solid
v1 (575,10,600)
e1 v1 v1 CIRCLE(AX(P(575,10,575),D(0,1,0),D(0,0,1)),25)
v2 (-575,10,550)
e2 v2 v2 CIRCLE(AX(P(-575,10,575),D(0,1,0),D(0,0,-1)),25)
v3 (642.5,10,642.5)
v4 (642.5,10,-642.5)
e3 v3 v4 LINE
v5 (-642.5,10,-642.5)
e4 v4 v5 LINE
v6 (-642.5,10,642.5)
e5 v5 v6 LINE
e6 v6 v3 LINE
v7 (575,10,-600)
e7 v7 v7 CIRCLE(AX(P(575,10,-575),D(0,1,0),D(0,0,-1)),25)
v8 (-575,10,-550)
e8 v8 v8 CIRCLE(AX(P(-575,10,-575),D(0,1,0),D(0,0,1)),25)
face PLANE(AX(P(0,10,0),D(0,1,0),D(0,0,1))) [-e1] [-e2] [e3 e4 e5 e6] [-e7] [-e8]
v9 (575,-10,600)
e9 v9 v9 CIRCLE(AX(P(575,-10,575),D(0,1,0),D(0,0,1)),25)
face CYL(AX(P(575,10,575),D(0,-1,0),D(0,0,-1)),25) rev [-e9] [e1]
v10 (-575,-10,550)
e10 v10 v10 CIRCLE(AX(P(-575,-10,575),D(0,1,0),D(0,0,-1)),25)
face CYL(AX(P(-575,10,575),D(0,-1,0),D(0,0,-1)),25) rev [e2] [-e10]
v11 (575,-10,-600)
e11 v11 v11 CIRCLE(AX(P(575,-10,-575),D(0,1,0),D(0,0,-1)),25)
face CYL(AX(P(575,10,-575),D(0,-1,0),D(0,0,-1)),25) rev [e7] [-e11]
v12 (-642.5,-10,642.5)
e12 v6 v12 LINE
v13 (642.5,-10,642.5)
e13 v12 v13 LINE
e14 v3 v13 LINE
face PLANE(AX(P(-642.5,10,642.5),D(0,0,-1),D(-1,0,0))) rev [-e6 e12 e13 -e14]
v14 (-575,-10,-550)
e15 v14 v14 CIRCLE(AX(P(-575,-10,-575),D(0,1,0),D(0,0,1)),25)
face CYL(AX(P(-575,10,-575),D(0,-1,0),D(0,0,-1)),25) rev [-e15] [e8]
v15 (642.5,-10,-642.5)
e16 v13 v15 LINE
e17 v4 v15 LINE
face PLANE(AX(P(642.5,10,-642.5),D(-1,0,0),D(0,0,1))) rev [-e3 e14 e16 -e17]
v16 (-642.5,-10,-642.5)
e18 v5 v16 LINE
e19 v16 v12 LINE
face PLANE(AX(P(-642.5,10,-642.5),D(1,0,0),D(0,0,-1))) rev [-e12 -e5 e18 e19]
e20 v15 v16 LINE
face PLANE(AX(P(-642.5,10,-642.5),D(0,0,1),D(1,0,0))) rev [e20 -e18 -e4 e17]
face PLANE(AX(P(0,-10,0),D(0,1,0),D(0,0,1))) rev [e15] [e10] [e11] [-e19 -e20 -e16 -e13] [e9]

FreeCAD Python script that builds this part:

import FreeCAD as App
import Part
import Sketcher

V = App.Vector

doc = App.newDocument("Part")
body = doc.addObject("PartDesign::Body", "Body")

sketch1 = body.newObject("Sketcher::SketchObject", "Sketch")
sketch1.AttachmentSupport = (doc.getObject("XZ_Plane"), [""])
sketch1.MapMode = "FlatFace"
sketch1.addGeometry(Part.LineSegment(V(-642, -642, 0), V(-642, 642, 0)), False)
sketch1.addGeometry(Part.LineSegment(V(-642, 642, 0), V(642, 642, 0)), False)
sketch1.addGeometry(Part.LineSegment(V(642, 642, 0), V(642, -642, 0)), False)
sketch1.addGeometry(Part.LineSegment(V(642, -642, 0), V(-642, -642, 0)), False)
sketch1.addGeometry(Part.Circle(V(-575, 575, 0), V(0, 0, 1), 25), False)
sketch1.addGeometry(Part.Circle(V(575, 575, 0), V(0, 0, 1), 25), False)
sketch1.addGeometry(Part.Circle(V(-575, -575, 0), V(0, 0, 1), 25), False)
sketch1.addGeometry(Part.Circle(V(575, -575, 0), V(0, 0, 1), 25), False)
sketch1.addConstraint(Sketcher.Constraint("Coincident", 0, 2, 1, 1))
sketch1.addConstraint(Sketcher.Constraint("Coincident", 1, 2, 2, 1))
sketch1.addConstraint(Sketcher.Constraint("Coincident", 2, 2, 3, 1))
sketch1.addConstraint(Sketcher.Constraint("Coincident", 3, 2, 0, 1))
sketch1.addConstraint(Sketcher.Constraint("Vertical", 0))
sketch1.addConstraint(Sketcher.Constraint("Horizontal", 1))
sketch1.addConstraint(Sketcher.Constraint("Vertical", 2))
sketch1.addConstraint(Sketcher.Constraint("Horizontal", 3))
sketch1.addConstraint(Sketcher.Constraint("Equal", 4, 5))
sketch1.addConstraint(Sketcher.Constraint("Equal", 5, 6))
sketch1.addConstraint(Sketcher.Constraint("Equal", 6, 7))
sketch1.addConstraint(Sketcher.Constraint("Symmetric", 5, 3, 6, 3, -1, 1))
sketch1.addConstraint(Sketcher.Constraint("Symmetric", 4, 3, 7, 3, -1, 1))
sketch1.addConstraint(Sketcher.Constraint("Symmetric", 0, 2, 2, 2, -1, 1))
sketch1.addConstraint(Sketcher.Constraint("Symmetric", 4, 3, 5, 3, -2))
sketch1.addConstraint(Sketcher.Constraint("Equal", 3, 0))
sketch1.addConstraint(Sketcher.Constraint("Diameter", 4, 50.0))
sketch1.addConstraint(Sketcher.Constraint("DistanceX", 1, 1, 1, 2, 1285.0))
sketch1.addConstraint(Sketcher.Constraint("DistanceX", 4, 3, -1, 1, 575.0))
sketch1.addConstraint(Sketcher.Constraint("DistanceY", -1, 1, 4, 3, 575.0))
pad1 = body.newObject("PartDesign::Pad", "Pad")
pad1.Profile = sketch1
pad1.Length = 20
pad1.Midplane = True

doc.recompute()
